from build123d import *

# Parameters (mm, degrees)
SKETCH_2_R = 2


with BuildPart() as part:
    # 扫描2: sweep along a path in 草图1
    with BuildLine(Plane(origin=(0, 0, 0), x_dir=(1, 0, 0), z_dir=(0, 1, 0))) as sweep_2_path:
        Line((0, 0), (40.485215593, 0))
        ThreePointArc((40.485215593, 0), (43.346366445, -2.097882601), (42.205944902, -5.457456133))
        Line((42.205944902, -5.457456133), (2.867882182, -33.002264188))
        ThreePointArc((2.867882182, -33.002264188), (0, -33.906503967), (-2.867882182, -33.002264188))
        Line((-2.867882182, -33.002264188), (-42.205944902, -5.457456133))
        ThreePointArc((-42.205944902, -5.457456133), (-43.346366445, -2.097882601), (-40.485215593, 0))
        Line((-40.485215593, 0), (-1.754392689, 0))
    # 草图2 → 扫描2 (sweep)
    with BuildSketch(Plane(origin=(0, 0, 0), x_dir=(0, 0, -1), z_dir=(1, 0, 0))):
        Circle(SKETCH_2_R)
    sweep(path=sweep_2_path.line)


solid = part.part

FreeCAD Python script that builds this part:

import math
import FreeCAD as App
import Part
import Sketcher

V = App.Vector
Q = App.Units.Quantity

doc = App.newDocument("Part")
body = doc.addObject("PartDesign::Body", "Body")

# Sketch on YZ plane
sketch1 = body.newObject("Sketcher::SketchObject", "Sketch")
sketch1.AttachmentSupport = (doc.getObject("YZ_Plane"), [""])
sketch1.MapMode = "FlatFace"
sketch1.addGeometry(Part.Circle(V(0, 0, 0), V(0, 0, 1), 2), False)
sketch1.addConstraint(Sketcher.Constraint("Coincident", 0, 3, -1, 1))
sketch1.addConstraint(Sketcher.Constraint("Diameter", 0, 4.0))

# Sketch on XZ plane
sketch2 = body.newObject("Sketcher::SketchObject", "Sketch001")
sketch2.AttachmentSupport = (doc.getObject("XZ_Plane"), [""])
sketch2.MapMode = "FlatFace"
sketch2.addGeometry(Part.LineSegment(V(0, 0, 0), V(40.5, 0, 0)), False)
sketch2.addGeometry(Part.ArcOfCircle(Part.Circle(V(40.5, 3, 0), V(0, 0, 1), 3), math.radians(-90), math.radians(55)), False)
sketch2.addGeometry(Part.LineSegment(V(42.2, 5.5, 0), V(2.9, 33, 0)), False)
sketch2.addGeometry(Part.ArcOfCircle(Part.Circle(V(0, 28.9, 0), V(0, 0, 1), 5), math.radians(55), math.radians(125)), False)
sketch2.addGeometry(Part.LineSegment(V(-2.9, 33, 0), V(-42.2, 5.5, 0)), False)
sketch2.addGeometry(Part.ArcOfCircle(Part.Circle(V(-40.5, 3, 0), V(0, 0, 1), 3), math.radians(125), math.radians(270)), False)
sketch2.addGeometry(Part.LineSegment(V(-40.5, 0, 0), V(-1.8, 0, 0)), False)
sketch2.addConstraint(Sketcher.Constraint("Tangent", 0, 2, 1, 1))
sketch2.addConstraint(Sketcher.Constraint("Tangent", 1, 2, 2, 1))
sketch2.addConstraint(Sketcher.Constraint("Tangent", 2, 2, 3, 1))
sketch2.addConstraint(Sketcher.Constraint("Tangent", 3, 2, 4, 1))
sketch2.addConstraint(Sketcher.Constraint("Tangent", 4, 2, 5, 1))
sketch2.addConstraint(Sketcher.Constraint("Tangent", 5, 2, 6, 1))
sketch2.addConstraint(Sketcher.Constraint("Horizontal", 0))
sketch2.addConstraint(Sketcher.Constraint("Horizontal", 6))
sketch2.addConstraint(Sketcher.Constraint("Coincident", 0, 1, -1, 1))
sketch2.addConstraint(Sketcher.Constraint("Equal", 1, 5))
sketch2.addConstraint(Sketcher.Constraint("Symmetric", 0, 2, 5, 2, -1, 1))
sketch2.addConstraint(Sketcher.Constraint("PointOnObject", 3, 3, -2))
sketch2.addConstraint(Sketcher.Constraint("Radius", 1, 3.0))
sketch2.addConstraint(Sketcher.Constraint("Radius", 3, 5.0))
sketch2.addConstraint(Sketcher.Constraint("Angle", 2, Q("145 deg")))
sketch2.addConstraint(Sketcher.Constraint("DistanceX", 0, 1, 0, 2, 40.485216))
sketch2.addConstraint(Sketcher.Constraint("DistanceX", 6, 1, 6, 2, 38.730823))
doc.recompute()

additivepipe = body.newObject("PartDesign::AdditivePipe", "AdditivePipe")
additivepipe.Profile = sketch1
additivepipe.Spine = (sketch2, ["Edge1", "Edge2", "Edge3", "Edge4", "Edge5", "Edge6", "Edge7"])

doc.recompute()
